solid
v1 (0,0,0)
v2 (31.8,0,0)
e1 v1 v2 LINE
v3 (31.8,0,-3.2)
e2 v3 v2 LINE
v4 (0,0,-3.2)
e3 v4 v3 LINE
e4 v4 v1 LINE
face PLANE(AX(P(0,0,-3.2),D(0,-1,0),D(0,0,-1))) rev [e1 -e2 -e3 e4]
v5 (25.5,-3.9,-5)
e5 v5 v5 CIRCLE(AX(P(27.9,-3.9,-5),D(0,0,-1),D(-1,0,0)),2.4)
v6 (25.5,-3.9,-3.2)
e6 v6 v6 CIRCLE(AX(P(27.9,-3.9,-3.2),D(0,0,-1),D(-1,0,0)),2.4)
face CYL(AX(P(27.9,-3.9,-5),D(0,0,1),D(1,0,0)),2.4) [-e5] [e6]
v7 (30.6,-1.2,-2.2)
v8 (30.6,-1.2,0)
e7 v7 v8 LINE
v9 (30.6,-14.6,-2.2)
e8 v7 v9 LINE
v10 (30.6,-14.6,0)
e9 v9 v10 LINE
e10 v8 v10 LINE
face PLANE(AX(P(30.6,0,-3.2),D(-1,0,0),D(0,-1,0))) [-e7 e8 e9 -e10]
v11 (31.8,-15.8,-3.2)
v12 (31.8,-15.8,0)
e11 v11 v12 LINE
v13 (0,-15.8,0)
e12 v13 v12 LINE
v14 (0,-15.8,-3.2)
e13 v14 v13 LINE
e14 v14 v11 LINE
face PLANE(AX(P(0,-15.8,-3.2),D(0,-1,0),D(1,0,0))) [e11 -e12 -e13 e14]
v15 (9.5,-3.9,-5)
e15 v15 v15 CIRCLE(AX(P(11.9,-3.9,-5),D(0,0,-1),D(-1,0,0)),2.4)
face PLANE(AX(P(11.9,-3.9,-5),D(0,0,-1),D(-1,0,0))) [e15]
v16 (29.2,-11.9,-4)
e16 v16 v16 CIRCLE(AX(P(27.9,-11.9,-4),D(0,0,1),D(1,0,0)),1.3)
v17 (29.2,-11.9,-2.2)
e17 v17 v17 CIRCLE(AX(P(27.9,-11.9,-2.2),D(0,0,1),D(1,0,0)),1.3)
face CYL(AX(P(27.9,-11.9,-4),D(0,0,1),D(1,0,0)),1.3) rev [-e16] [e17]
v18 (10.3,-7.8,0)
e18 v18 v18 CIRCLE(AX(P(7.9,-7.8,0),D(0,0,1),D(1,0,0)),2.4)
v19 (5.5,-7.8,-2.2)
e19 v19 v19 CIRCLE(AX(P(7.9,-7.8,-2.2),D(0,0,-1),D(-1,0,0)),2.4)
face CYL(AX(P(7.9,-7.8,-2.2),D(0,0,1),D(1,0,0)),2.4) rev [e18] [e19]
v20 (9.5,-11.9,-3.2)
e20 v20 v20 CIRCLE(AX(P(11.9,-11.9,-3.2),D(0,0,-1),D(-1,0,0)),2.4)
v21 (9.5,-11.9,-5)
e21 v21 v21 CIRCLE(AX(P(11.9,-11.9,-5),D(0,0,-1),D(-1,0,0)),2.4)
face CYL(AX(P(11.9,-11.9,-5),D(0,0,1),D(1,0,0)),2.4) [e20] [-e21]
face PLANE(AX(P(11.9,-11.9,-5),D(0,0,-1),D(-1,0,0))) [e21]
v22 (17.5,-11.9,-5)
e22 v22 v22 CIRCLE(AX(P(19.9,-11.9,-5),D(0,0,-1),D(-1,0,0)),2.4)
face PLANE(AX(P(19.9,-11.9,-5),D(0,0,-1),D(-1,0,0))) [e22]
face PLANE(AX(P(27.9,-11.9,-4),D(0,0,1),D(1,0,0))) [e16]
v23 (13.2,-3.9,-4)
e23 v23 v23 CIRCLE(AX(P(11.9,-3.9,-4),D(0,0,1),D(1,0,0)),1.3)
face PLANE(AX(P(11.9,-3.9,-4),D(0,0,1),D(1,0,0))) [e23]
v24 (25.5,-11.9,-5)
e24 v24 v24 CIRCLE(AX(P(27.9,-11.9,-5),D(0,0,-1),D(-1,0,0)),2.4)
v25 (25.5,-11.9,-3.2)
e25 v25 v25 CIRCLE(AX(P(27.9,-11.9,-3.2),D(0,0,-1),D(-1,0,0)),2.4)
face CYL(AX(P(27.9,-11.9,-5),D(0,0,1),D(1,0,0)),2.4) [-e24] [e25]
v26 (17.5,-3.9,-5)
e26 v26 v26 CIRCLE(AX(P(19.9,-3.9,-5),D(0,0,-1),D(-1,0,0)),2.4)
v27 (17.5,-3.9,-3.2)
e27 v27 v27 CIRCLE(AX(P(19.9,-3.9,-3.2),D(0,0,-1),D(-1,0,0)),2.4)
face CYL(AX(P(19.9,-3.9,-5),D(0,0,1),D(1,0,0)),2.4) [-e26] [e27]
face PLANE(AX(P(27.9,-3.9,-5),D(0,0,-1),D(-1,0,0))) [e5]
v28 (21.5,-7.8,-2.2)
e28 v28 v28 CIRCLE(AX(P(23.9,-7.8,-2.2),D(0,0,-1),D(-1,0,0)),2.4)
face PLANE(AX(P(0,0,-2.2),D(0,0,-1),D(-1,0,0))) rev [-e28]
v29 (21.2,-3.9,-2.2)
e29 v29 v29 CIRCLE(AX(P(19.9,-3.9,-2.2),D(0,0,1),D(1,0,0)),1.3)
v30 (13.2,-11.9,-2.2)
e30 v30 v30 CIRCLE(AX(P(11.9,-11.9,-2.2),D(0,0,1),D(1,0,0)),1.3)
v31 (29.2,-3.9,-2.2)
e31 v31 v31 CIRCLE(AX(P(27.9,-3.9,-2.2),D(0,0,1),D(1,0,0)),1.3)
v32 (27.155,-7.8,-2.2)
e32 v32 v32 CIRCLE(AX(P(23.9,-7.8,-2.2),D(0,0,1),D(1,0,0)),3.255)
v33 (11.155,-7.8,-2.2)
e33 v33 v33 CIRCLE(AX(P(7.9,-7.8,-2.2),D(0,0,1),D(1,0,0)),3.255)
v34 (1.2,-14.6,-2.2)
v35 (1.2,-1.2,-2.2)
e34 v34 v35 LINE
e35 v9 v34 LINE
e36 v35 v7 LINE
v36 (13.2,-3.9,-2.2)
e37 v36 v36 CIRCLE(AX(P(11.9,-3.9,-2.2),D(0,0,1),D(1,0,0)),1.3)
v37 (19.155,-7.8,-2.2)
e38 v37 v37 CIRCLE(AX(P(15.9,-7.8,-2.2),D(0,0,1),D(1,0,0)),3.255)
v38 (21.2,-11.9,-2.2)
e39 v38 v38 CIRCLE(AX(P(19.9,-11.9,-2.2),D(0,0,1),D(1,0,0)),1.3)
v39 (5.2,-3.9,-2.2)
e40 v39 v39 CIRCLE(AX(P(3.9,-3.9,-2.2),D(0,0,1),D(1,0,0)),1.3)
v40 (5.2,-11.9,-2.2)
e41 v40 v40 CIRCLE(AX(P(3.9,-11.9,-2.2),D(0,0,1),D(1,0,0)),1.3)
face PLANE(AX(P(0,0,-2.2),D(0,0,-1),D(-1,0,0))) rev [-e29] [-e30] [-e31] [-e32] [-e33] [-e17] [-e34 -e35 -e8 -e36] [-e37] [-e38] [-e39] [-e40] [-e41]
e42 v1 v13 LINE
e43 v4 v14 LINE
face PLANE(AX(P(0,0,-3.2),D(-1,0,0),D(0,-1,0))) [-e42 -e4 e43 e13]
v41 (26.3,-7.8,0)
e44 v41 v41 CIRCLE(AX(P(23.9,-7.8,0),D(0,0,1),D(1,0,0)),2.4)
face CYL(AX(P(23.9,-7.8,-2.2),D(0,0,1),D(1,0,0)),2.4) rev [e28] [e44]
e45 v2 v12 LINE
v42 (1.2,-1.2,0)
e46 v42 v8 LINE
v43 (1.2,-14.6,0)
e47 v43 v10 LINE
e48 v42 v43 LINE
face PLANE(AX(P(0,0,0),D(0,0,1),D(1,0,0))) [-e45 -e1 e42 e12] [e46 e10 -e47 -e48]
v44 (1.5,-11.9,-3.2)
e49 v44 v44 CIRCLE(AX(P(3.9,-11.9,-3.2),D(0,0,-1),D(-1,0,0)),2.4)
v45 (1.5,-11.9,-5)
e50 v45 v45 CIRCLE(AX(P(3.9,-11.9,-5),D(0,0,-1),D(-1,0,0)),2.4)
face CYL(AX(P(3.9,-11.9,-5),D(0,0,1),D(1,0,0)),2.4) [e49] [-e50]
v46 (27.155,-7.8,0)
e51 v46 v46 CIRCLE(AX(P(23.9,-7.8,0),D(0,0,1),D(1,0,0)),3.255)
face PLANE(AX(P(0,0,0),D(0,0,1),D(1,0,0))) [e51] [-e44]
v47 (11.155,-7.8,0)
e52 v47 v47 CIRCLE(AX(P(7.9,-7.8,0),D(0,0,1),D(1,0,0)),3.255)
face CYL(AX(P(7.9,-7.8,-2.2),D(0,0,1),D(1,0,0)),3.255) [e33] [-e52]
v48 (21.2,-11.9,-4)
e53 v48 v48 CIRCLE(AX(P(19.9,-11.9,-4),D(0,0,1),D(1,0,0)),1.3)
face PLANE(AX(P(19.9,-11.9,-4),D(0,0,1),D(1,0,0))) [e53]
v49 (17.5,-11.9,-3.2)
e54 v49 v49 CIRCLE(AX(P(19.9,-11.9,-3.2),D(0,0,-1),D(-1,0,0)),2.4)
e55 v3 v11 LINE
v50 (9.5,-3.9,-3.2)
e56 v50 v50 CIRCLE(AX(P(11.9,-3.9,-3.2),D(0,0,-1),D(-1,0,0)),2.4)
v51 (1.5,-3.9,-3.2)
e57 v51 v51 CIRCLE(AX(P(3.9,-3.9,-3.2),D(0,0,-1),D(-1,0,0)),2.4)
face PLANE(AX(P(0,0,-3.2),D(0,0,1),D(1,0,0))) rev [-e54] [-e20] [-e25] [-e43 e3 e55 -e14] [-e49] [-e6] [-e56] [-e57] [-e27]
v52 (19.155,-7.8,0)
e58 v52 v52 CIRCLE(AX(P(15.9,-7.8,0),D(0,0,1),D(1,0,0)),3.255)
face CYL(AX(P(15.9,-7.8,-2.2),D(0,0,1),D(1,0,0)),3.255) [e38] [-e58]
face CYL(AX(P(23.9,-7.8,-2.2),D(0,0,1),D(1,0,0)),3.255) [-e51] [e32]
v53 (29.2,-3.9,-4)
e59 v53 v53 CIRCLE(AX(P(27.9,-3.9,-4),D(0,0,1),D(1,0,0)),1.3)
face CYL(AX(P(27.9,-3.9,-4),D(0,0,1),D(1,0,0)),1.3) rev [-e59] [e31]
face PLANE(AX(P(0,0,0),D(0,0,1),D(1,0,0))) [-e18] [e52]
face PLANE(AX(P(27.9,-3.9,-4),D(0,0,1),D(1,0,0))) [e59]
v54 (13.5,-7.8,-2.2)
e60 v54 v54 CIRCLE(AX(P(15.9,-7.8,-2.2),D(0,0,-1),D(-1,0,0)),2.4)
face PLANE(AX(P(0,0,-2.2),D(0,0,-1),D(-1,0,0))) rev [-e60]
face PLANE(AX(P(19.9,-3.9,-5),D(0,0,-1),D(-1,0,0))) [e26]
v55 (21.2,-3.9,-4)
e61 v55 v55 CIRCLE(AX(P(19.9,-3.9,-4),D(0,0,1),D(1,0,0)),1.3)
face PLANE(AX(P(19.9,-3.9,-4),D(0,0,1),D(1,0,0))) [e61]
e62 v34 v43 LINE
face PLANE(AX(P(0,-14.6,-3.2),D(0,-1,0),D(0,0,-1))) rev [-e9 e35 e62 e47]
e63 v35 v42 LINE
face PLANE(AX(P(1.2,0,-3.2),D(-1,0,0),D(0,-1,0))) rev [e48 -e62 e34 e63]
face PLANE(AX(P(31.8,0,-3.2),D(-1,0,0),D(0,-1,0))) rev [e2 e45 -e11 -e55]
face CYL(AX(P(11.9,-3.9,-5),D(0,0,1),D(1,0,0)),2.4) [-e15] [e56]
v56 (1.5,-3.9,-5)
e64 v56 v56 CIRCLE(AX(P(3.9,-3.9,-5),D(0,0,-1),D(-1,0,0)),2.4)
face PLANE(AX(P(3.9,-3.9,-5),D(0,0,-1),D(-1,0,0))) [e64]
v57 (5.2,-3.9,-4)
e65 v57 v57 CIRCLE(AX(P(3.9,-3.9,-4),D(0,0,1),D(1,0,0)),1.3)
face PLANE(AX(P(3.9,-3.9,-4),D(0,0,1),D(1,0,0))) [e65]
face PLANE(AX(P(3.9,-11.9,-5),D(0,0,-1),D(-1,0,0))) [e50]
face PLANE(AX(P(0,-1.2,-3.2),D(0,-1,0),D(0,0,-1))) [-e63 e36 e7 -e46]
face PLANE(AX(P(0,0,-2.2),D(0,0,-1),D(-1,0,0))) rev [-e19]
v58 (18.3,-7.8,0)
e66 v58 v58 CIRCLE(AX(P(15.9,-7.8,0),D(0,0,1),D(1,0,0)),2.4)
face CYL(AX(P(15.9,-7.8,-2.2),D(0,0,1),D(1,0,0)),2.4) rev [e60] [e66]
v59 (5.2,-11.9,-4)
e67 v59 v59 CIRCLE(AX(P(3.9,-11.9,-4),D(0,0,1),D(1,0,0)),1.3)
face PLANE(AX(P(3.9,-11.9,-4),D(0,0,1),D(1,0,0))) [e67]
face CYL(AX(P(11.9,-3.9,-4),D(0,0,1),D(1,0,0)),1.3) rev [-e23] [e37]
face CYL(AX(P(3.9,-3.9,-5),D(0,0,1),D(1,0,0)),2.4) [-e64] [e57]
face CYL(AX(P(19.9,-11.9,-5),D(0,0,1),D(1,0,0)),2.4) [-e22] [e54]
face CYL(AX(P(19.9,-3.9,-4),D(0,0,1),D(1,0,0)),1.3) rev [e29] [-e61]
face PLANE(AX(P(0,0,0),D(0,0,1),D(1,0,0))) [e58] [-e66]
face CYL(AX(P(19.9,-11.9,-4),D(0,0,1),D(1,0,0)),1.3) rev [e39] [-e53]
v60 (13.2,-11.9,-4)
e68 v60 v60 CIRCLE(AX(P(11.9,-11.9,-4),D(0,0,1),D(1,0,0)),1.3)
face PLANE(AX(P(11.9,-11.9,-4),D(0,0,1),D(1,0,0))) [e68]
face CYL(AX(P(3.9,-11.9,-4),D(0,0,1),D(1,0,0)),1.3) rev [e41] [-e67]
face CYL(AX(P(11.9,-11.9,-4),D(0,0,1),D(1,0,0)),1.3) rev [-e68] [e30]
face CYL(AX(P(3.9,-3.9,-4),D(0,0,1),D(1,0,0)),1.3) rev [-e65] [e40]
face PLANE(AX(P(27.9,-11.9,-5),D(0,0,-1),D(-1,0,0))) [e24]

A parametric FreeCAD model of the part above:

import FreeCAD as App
import Part
import Sketcher
Q = App.Units.Quantity

doc = App.newDocument("Part")
body = doc.addObject("PartDesign::Body", "Body")

# Sketch on XY plane
sketch1 = doc.addObject("Sketcher::SketchObject", "Sketch")
body.addObject(sketch1)
sketch1.AttachmentSupport = (doc.XY_Plane, [""])
sketch1.MapMode = "FlatFace"
sketch1.addGeometry([
    Part.LineSegment(App.Vector(0, 0, 0), App.Vector(0, -16, 0)),  # 0
    Part.LineSegment(App.Vector(0, -16, 0), App.Vector(32, -16, 0)),  # 1
    Part.LineSegment(App.Vector(32, -16, 0), App.Vector(32, 0, 0)),  # 2
    Part.LineSegment(App.Vector(32, 0, 0), App.Vector(0, 0, 0)),  # 3
    Part.LineSegment(App.Vector(31, -15, 0), App.Vector(1, -15, 0)),  # 4
    Part.LineSegment(App.Vector(1, -15, 0), App.Vector(1, -1, 0)),  # 5
    Part.LineSegment(App.Vector(1, -1, 0), App.Vector(31, -1, 0)),  # 6
    Part.LineSegment(App.Vector(31, -1, 0), App.Vector(31, -15, 0)),  # 7
], False)
sketch1.addConstraint([
    Sketcher.Constraint("Coincident", 0, 2, 1, 1),
    Sketcher.Constraint("Coincident", 1, 2, 2, 1),
    Sketcher.Constraint("Coincident", 2, 2, 3, 1),
    Sketcher.Constraint("Coincident", 3, 2, 0, 1),
    Sketcher.Constraint("Coincident", 4, 2, 5, 1),
    Sketcher.Constraint("Coincident", 5, 2, 6, 1),
    Sketcher.Constraint("Coincident", 6, 2, 7, 1),
    Sketcher.Constraint("Coincident", 7, 2, 4, 1),
    Sketcher.Constraint("Vertical", 0),
    Sketcher.Constraint("Horizontal", 1),
    Sketcher.Constraint("Vertical", 2),
    Sketcher.Constraint("Horizontal", 3),
    Sketcher.Constraint("Horizontal", 4),
    Sketcher.Constraint("Vertical", 5),
    Sketcher.Constraint("Horizontal", 6),
    Sketcher.Constraint("Vertical", 7),
    Sketcher.Constraint("Coincident", 3, 2, -1, 1),
    Sketcher.Constraint("DistanceX", 1, 1, 1, 2, Q("31.8 mm")),
    Sketcher.Constraint("DistanceX", 4, 2, 4, 1, Q("29.4 mm")),
    Sketcher.Constraint("DistanceY", 0, 2, 0, 1, Q("15.8 mm")),
    Sketcher.Constraint("DistanceY", 5, 1, 5, 2, Q("13.4 mm")),
    Sketcher.Constraint("DistanceX", -1, 1, 4, 2, Q("1.2 mm")),
    Sketcher.Constraint("DistanceY", 4, 2, -1, 1, Q("14.6 mm")),
])
pad1 = doc.addObject("PartDesign::Pad", "Pad")
body.addObject(pad1)
pad1.Profile = sketch1
pad1.Length = 3.2
pad1.Reversed = True
body2 = doc.addObject("PartDesign::Body", "Body001")

# Sketch on XY plane
sketch2 = doc.addObject("Sketcher::SketchObject", "Sketch001")
body2.addObject(sketch2)
sketch2.AttachmentSupport = (doc.getObject("XY_Plane001"), [""])
sketch2.MapMode = "FlatFace"
sketch2.addGeometry([
    Part.Circle(App.Vector(23.9, -7.8, 0), App.Vector(0, 0, 1), 3.3),
    Part.Circle(App.Vector(23.9, -7.8, 0), App.Vector(0, 0, 1), 2.4),
], False)
sketch2.addConstraint([
    Sketcher.Constraint("Coincident", 1, 3, 0, 3),
    Sketcher.Constraint("Diameter", 1, Q("4.8 mm")),
    Sketcher.Constraint("Diameter", 0, Q("6.51 mm")),
    Sketcher.Constraint("DistanceX", -1, 1, 0, 3, Q("23.9 mm")),
    Sketcher.Constraint("DistanceY", 0, 3, -1, 1, Q("7.8 mm")),
])
pad2 = doc.addObject("PartDesign::Pad", "Pad001")
body2.addObject(pad2)
pad2.Profile = sketch2
pad2.Length = 2.2
pad2.Reversed = True
body3 = doc.addObject("PartDesign::Body", "Body002")

# Sketch on XY plane
sketch3 = doc.addObject("Sketcher::SketchObject", "Sketch002")
body3.addObject(sketch3)
sketch3.AttachmentSupport = (doc.getObject("XY_Plane002"), [""])
sketch3.MapMode = "FlatFace"
sketch3.addGeometry([
    Part.Circle(App.Vector(15.9, -7.8, 0), App.Vector(0, 0, 1), 3.3),
    Part.Circle(App.Vector(15.9, -7.8, 0), App.Vector(0, 0, 1), 2.4),
], False)
sketch3.addConstraint([
    Sketcher.Constraint("Coincident", 1, 3, 0, 3),
    Sketcher.Constraint("Diameter", 1, Q("4.8 mm")),
    Sketcher.Constraint("Diameter", 0, Q("6.51 mm")),
    Sketcher.Constraint("DistanceX", -1, 1, 0, 3, Q("15.9 mm")),
    Sketcher.Constraint("DistanceY", 0, 3, -1, 1, Q("7.8 mm")),
])
pad3 = doc.addObject("PartDesign::Pad", "Pad002")
body3.addObject(pad3)
pad3.Profile = sketch3
pad3.Length = 2.2
pad3.Reversed = True
body4 = doc.addObject("PartDesign::Body", "Body003")

# Sketch on XY plane
sketch4 = doc.addObject("Sketcher::SketchObject", "Sketch003")
body4.addObject(sketch4)
sketch4.AttachmentSupport = (doc.getObject("XY_Plane003"), [""])
sketch4.MapMode = "FlatFace"
sketch4.addGeometry([
    Part.Circle(App.Vector(7.9, -7.8, 0), App.Vector(0, 0, 1), 3.3),
    Part.Circle(App.Vector(7.9, -7.8, 0), App.Vector(0, 0, 1), 2.4),
], False)
sketch4.addConstraint([
    Sketcher.Constraint("Coincident", 1, 3, 0, 3),
    Sketcher.Constraint("Diameter", 1, Q("4.8 mm")),
    Sketcher.Constraint("Diameter", 0, Q("6.51 mm")),
    Sketcher.Constraint("DistanceX", -1, 1, 0, 3, Q("7.9 mm")),
    Sketcher.Constraint("DistanceY", 0, 3, -1, 1, Q("7.8 mm")),
])
pad4 = doc.addObject("PartDesign::Pad", "Pad003")
body4.addObject(pad4)
pad4.Profile = sketch4
pad4.Length = 2.2
pad4.Reversed = True
body.AllowCompound = True
doc.recompute()

boolean = doc.addObject("PartDesign::Boolean", "Boolean")
body.addObject(boolean)
boolean.Type = "Fuse"
boolean.addObjects([body2])
doc.recompute()

boolean2 = doc.addObject("PartDesign::Boolean", "Boolean001")
body.addObject(boolean2)
boolean2.Type = "Fuse"
boolean2.addObjects([body3])
doc.recompute()

boolean3 = doc.addObject("PartDesign::Boolean", "Boolean002")
body.addObject(boolean3)
boolean3.Type = "Fuse"
boolean3.addObjects([body4])

# Sketch on XY plane
sketch5 = doc.addObject("Sketcher::SketchObject", "Sketch004")
body.addObject(sketch5)
sketch5.AttachmentSupport = (doc.XY_Plane, [""])
sketch5.MapMode = "FlatFace"
sketch5.AttachmentOffset = App.Placement(App.Vector(0, 0, -2.2), App.Rotation())
sketch5.addGeometry([
    Part.LineSegment(App.Vector(31, -1, 0), App.Vector(31, -15, 0)),
    Part.LineSegment(App.Vector(31, -15, 0), App.Vector(1, -15, 0)),
    Part.LineSegment(App.Vector(1, -15, 0), App.Vector(1, -1, 0)),
    Part.LineSegment(App.Vector(1, -1, 0), App.Vector(31, -1, 0)),
], False)
sketch5.addConstraint([
    Sketcher.Constraint("Coincident", 0, 2, 1, 1),
    Sketcher.Constraint("Coincident", 1, 2, 2, 1),
    Sketcher.Constraint("Coincident", 2, 2, 3, 1),
    Sketcher.Constraint("Coincident", 3, 2, 0, 1),
    Sketcher.Constraint("Vertical", 0),
    Sketcher.Constraint("Horizontal", 1),
    Sketcher.Constraint("Vertical", 2),
    Sketcher.Constraint("Horizontal", 3),
    Sketcher.Constraint("DistanceX", 1, 2, 1, 1, Q("29.4 mm")),
    Sketcher.Constraint("DistanceY", 0, 2, 0, 1, Q("13.4 mm")),
    Sketcher.Constraint("DistanceX", -1, 1, 0, 2, Q("30.6 mm")),
    Sketcher.Constraint("DistanceY", 0, 2, -1, 1, Q("14.6 mm")),
])
pad5 = doc.addObject("PartDesign::Pad", "Pad004")
body.addObject(pad5)
pad5.Profile = sketch5
pad5.Length = 1
pad5.Reversed = True

# Sketch on XY plane
sketch6 = doc.addObject("Sketcher::SketchObject", "Sketch005")
body.addObject(sketch6)
sketch6.AttachmentSupport = (doc.XY_Plane, [""])
sketch6.MapMode = "FlatFace"
sketch6.AttachmentOffset = App.Placement(App.Vector(0, 0, -3.2), App.Rotation())
sketch6.addGeometry([
    Part.Circle(App.Vector(27.9, -3.9, 0), App.Vector(0, 0, 1), 2.4),  # 0
    Part.Circle(App.Vector(19.9, -3.9, 0), App.Vector(0, 0, 1), 2.4),  # 1
    Part.Circle(App.Vector(11.9, -3.9, 0), App.Vector(0, 0, 1), 2.4),  # 2
    Part.Circle(App.Vector(3.9, -3.9, 0), App.Vector(0, 0, 1), 2.4),  # 3
    Part.Circle(App.Vector(19.9, -11.9, 0), App.Vector(0, 0, 1), 2.4),  # 4
    Part.Circle(App.Vector(11.9, -11.9, 0), App.Vector(0, 0, 1), 2.4),  # 5
    Part.Circle(App.Vector(3.9, -11.9, 0), App.Vector(0, 0, 1), 2.4),  # 6
    Part.Circle(App.Vector(27.9, -11.9, 0), App.Vector(0, 0, 1), 2.4),  # 7
], False)
sketch6.addConstraint([
    Sketcher.Constraint("Equal", 0, 1),
    Sketcher.Constraint("Equal", 1, 2),
    Sketcher.Constraint("Equal", 2, 3),
    Sketcher.Constraint("Equal", 3, 4),
    Sketcher.Constraint("Equal", 4, 5),
    Sketcher.Constraint("Equal", 5, 6),
    Sketcher.Constraint("Equal", 6, 7),
    Sketcher.Constraint("Horizontal", 0, 3, 1, 3),
    Sketcher.Constraint("Horizontal", 1, 3, 2, 3),
    Sketcher.Constraint("Horizontal", 2, 3, 3, 3),
    Sketcher.Constraint("Horizontal", 4, 3, 5, 3),
    Sketcher.Constraint("Horizontal", 5, 3, 6, 3),
    Sketcher.Constraint("Horizontal", 6, 3, 7, 3),
    Sketcher.Constraint("Vertical", 1, 3, 4, 3),
    Sketcher.Constraint("Vertical", 2, 3, 5, 3),
    Sketcher.Constraint("Vertical", 3, 3, 6, 3),
    Sketcher.Constraint("Vertical", 0, 3, 7, 3),
    Sketcher.Constraint("Diameter", 0, Q("4.8 mm")),
    Sketcher.Constraint("DistanceX", 1, 3, 0, 3, Q("8 mm")),
    Sketcher.Constraint("DistanceX", 2, 3, 1, 3, Q("8 mm")),
    Sketcher.Constraint("DistanceX", 3, 3, 2, 3, Q("8 mm")),
    Sketcher.Constraint("DistanceY", 4, 3, 1, 3, Q("8 mm")),
    Sketcher.Constraint("DistanceX", -1, 1, 0, 3, Q("27.9 mm")),
    Sketcher.Constraint("DistanceY", 0, 3, -1, 1, Q("3.9 mm")),
])
pad6 = doc.addObject("PartDesign::Pad", "Pad005")
body.addObject(pad6)
pad6.Profile = sketch6
pad6.Length = 1.8
pad6.Reversed = True

# Sketch on XY plane
sketch7 = doc.addObject("Sketcher::SketchObject", "Sketch006")
body.addObject(sketch7)
sketch7.AttachmentSupport = (doc.XY_Plane, [""])
sketch7.MapMode = "FlatFace"
sketch7.AttachmentOffset = App.Placement(App.Vector(0, 0, -2.2), App.Rotation())
sketch7.addGeometry([
    Part.Circle(App.Vector(3.9, -3.9, 0), App.Vector(0, 0, 1), 1.3),  # 0
    Part.Circle(App.Vector(11.9, -3.9, 0), App.Vector(0, 0, 1), 1.3),  # 1
    Part.Circle(App.Vector(19.9, -3.9, 0), App.Vector(0, 0, 1), 1.3),  # 2
    Part.Circle(App.Vector(27.9, -3.9, 0), App.Vector(0, 0, 1), 1.3),  # 3
    Part.Circle(App.Vector(11.9, -11.9, 0), App.Vector(0, 0, 1), 1.3),  # 4
    Part.Circle(App.Vector(19.9, -11.9, 0), App.Vector(0, 0, 1), 1.3),  # 5
    Part.Circle(App.Vector(27.9, -11.9, 0), App.Vector(0, 0, 1), 1.3),  # 6
    Part.Circle(App.Vector(3.9, -11.9, 0), App.Vector(0, 0, 1), 1.3),  # 7
], False)
sketch7.addConstraint([
    Sketcher.Constraint("Equal", 0, 1),
    Sketcher.Constraint("Equal", 1, 2),
    Sketcher.Constraint("Equal", 2, 3),
    Sketcher.Constraint("Equal", 3, 4),
    Sketcher.Constraint("Equal", 4, 5),
    Sketcher.Constraint("Equal", 5, 6),
    Sketcher.Constraint("Equal", 6, 7),
    Sketcher.Constraint("Horizontal", 0, 3, 1, 3),
    Sketcher.Constraint("Horizontal", 1, 3, 2, 3),
    Sketcher.Constraint("Horizontal", 2, 3, 3, 3),
    Sketcher.Constraint("Horizontal", 4, 3, 5, 3),
    Sketcher.Constraint("Horizontal", 5, 3, 6, 3),
    Sketcher.Constraint("Horizontal", 6, 3, 7, 3),
    Sketcher.Constraint("Vertical", 1, 3, 4, 3),
    Sketcher.Constraint("Vertical", 2, 3, 5, 3),
    Sketcher.Constraint("Vertical", 3, 3, 6, 3),
    Sketcher.Constraint("Vertical", 0, 3, 7, 3),
    Sketcher.Constraint("Diameter", 0, Q("2.6 mm")),
    Sketcher.Constraint("DistanceX", 0, 3, 1, 3, Q("8 mm")),
    Sketcher.Constraint("DistanceX", 1, 3, 2, 3, Q("8 mm")),
    Sketcher.Constraint("DistanceX", 2, 3, 3, 3, Q("8 mm")),
    Sketcher.Constraint("DistanceY", 4, 3, 1, 3, Q("8 mm")),
    Sketcher.Constraint("DistanceX", -1, 1, 0, 3, Q("3.9 mm")),
    Sketcher.Constraint("DistanceY", 0, 3, -1, 1, Q("3.9 mm")),
])
pocket1 = doc.addObject("PartDesign::Pocket", "Pocket")
body.addObject(pocket1)
pocket1.Profile = sketch7
pocket1.Length = 1.8

doc.recompute()
